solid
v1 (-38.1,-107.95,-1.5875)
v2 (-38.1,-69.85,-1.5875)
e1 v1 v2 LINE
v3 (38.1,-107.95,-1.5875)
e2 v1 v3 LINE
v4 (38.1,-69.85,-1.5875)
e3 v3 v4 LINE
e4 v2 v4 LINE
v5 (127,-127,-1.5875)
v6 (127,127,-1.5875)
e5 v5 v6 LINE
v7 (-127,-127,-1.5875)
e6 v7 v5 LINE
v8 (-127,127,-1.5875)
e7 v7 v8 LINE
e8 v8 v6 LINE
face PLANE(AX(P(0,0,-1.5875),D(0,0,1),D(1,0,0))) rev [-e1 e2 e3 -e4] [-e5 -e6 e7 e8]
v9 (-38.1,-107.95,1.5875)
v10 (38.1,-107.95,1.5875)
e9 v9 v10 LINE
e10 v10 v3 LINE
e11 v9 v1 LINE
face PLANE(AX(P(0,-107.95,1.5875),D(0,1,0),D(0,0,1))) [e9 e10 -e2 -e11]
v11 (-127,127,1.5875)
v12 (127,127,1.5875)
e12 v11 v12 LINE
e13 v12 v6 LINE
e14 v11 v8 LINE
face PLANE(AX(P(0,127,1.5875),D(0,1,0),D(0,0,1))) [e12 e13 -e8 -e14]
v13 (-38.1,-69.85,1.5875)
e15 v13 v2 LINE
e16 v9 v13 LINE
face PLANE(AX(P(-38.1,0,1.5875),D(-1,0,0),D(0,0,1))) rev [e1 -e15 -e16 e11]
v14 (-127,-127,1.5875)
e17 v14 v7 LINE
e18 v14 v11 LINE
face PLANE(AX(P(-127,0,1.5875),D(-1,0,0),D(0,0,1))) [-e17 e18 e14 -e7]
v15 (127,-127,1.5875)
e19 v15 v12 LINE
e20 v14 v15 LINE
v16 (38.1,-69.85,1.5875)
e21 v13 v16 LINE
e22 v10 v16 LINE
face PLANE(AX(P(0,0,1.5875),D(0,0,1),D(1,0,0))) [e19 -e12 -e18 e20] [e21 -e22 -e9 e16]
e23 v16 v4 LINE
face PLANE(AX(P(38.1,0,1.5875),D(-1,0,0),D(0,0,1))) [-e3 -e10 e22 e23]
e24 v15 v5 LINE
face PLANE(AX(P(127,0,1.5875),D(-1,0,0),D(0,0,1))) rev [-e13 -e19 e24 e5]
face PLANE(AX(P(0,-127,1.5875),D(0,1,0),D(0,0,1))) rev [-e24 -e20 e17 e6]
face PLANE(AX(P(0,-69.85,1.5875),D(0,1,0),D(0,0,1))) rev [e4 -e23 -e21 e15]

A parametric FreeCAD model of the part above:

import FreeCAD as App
import Part
import Sketcher
Q = App.Units.Quantity

doc = App.newDocument("Part")
params = doc.addObject("Spreadsheet::Sheet", "Params")
for row, (alias, value) in enumerate([
    ("sketch1_width", "10 in"),
    ("sketch1_width2", "3 in"),
    ("sketch1_height", "1.5 in"),
    ("pad1_length", "0.125 in"),
], start=1):
    params.set(f"A{row}", alias)
    params.set(f"B{row}", "=" + value)
    params.setAlias(f"B{row}", alias)

body = doc.addObject("PartDesign::Body", "Body")

sketch1 = body.newObject("Sketcher::SketchObject", "Sketch")
sketch1.AttachmentSupport = (doc.getObject("XY_Plane"), [""])
sketch1.MapMode = "FlatFace"
sketch1.addGeometry([
    Part.LineSegment(App.Vector(-127, 127, 0), App.Vector(-127, -127, 0)),
    Part.LineSegment(App.Vector(-127, -127, 0), App.Vector(127, -127, 0)),
    Part.LineSegment(App.Vector(127, -127, 0), App.Vector(127, 127, 0)),
    Part.LineSegment(App.Vector(127, 127, 0), App.Vector(-127, 127, 0)),
    Part.LineSegment(App.Vector(38.1, -107.95, 0), App.Vector(-38.1, -107.95, 0)),
    Part.LineSegment(App.Vector(-38.1, -107.95, 0), App.Vector(-38.1, -69.85, 0)),
    Part.LineSegment(App.Vector(-38.1, -69.85, 0), App.Vector(38.1, -69.85, 0)),
    Part.LineSegment(App.Vector(38.1, -69.85, 0), App.Vector(38.1, -107.95, 0)),
], False)
sketch1.addConstraint([
    Sketcher.Constraint("Coincident", 0, 2, 1, 1),
    Sketcher.Constraint("Coincident", 1, 2, 2, 1),
    Sketcher.Constraint("Coincident", 2, 2, 3, 1),
    Sketcher.Constraint("Coincident", 3, 2, 0, 1),
    Sketcher.Constraint("Coincident", 4, 2, 5, 1),
    Sketcher.Constraint("Coincident", 5, 2, 6, 1),
    Sketcher.Constraint("Coincident", 6, 2, 7, 1),
    Sketcher.Constraint("Coincident", 7, 2, 4, 1),
    Sketcher.Constraint("Vertical", 0),
    Sketcher.Constraint("Horizontal", 1),
    Sketcher.Constraint("Vertical", 2),
    Sketcher.Constraint("Horizontal", 3),
    Sketcher.Constraint("Horizontal", 4),
    Sketcher.Constraint("Vertical", 5),
    Sketcher.Constraint("Horizontal", 6),
    Sketcher.Constraint("Vertical", 7),
    Sketcher.Constraint("Symmetric", 0, 2, 2, 2, -1, 1),
    Sketcher.Constraint("Equal", 3, 0),
    Sketcher.Constraint("DistanceX", 1, 1, 1, 2, Q("10 in")),
    Sketcher.Constraint("DistanceX", 4, 2, 4, 1, Q("3 in")),
    Sketcher.Constraint("DistanceY", 5, 1, 5, 2, Q("1.5 in")),
    Sketcher.Constraint("DistanceX", 4, 2, -1, 1, Q("1.5 in")),
    Sketcher.Constraint("DistanceY", 4, 2, -1, 1, Q("4.25 in")),
])
sketch1.setExpression("Constraints[18]", "Params.sketch1_width")
sketch1.setExpression("Constraints[19]", "Params.sketch1_width2")
sketch1.setExpression("Constraints[20]", "Params.sketch1_height")
pad1 = body.newObject("PartDesign::Pad", "Pad")
pad1.Profile = sketch1
pad1.setExpression("Length", "Params.pad1_length")
pad1.Midplane = True

doc.recompute()
